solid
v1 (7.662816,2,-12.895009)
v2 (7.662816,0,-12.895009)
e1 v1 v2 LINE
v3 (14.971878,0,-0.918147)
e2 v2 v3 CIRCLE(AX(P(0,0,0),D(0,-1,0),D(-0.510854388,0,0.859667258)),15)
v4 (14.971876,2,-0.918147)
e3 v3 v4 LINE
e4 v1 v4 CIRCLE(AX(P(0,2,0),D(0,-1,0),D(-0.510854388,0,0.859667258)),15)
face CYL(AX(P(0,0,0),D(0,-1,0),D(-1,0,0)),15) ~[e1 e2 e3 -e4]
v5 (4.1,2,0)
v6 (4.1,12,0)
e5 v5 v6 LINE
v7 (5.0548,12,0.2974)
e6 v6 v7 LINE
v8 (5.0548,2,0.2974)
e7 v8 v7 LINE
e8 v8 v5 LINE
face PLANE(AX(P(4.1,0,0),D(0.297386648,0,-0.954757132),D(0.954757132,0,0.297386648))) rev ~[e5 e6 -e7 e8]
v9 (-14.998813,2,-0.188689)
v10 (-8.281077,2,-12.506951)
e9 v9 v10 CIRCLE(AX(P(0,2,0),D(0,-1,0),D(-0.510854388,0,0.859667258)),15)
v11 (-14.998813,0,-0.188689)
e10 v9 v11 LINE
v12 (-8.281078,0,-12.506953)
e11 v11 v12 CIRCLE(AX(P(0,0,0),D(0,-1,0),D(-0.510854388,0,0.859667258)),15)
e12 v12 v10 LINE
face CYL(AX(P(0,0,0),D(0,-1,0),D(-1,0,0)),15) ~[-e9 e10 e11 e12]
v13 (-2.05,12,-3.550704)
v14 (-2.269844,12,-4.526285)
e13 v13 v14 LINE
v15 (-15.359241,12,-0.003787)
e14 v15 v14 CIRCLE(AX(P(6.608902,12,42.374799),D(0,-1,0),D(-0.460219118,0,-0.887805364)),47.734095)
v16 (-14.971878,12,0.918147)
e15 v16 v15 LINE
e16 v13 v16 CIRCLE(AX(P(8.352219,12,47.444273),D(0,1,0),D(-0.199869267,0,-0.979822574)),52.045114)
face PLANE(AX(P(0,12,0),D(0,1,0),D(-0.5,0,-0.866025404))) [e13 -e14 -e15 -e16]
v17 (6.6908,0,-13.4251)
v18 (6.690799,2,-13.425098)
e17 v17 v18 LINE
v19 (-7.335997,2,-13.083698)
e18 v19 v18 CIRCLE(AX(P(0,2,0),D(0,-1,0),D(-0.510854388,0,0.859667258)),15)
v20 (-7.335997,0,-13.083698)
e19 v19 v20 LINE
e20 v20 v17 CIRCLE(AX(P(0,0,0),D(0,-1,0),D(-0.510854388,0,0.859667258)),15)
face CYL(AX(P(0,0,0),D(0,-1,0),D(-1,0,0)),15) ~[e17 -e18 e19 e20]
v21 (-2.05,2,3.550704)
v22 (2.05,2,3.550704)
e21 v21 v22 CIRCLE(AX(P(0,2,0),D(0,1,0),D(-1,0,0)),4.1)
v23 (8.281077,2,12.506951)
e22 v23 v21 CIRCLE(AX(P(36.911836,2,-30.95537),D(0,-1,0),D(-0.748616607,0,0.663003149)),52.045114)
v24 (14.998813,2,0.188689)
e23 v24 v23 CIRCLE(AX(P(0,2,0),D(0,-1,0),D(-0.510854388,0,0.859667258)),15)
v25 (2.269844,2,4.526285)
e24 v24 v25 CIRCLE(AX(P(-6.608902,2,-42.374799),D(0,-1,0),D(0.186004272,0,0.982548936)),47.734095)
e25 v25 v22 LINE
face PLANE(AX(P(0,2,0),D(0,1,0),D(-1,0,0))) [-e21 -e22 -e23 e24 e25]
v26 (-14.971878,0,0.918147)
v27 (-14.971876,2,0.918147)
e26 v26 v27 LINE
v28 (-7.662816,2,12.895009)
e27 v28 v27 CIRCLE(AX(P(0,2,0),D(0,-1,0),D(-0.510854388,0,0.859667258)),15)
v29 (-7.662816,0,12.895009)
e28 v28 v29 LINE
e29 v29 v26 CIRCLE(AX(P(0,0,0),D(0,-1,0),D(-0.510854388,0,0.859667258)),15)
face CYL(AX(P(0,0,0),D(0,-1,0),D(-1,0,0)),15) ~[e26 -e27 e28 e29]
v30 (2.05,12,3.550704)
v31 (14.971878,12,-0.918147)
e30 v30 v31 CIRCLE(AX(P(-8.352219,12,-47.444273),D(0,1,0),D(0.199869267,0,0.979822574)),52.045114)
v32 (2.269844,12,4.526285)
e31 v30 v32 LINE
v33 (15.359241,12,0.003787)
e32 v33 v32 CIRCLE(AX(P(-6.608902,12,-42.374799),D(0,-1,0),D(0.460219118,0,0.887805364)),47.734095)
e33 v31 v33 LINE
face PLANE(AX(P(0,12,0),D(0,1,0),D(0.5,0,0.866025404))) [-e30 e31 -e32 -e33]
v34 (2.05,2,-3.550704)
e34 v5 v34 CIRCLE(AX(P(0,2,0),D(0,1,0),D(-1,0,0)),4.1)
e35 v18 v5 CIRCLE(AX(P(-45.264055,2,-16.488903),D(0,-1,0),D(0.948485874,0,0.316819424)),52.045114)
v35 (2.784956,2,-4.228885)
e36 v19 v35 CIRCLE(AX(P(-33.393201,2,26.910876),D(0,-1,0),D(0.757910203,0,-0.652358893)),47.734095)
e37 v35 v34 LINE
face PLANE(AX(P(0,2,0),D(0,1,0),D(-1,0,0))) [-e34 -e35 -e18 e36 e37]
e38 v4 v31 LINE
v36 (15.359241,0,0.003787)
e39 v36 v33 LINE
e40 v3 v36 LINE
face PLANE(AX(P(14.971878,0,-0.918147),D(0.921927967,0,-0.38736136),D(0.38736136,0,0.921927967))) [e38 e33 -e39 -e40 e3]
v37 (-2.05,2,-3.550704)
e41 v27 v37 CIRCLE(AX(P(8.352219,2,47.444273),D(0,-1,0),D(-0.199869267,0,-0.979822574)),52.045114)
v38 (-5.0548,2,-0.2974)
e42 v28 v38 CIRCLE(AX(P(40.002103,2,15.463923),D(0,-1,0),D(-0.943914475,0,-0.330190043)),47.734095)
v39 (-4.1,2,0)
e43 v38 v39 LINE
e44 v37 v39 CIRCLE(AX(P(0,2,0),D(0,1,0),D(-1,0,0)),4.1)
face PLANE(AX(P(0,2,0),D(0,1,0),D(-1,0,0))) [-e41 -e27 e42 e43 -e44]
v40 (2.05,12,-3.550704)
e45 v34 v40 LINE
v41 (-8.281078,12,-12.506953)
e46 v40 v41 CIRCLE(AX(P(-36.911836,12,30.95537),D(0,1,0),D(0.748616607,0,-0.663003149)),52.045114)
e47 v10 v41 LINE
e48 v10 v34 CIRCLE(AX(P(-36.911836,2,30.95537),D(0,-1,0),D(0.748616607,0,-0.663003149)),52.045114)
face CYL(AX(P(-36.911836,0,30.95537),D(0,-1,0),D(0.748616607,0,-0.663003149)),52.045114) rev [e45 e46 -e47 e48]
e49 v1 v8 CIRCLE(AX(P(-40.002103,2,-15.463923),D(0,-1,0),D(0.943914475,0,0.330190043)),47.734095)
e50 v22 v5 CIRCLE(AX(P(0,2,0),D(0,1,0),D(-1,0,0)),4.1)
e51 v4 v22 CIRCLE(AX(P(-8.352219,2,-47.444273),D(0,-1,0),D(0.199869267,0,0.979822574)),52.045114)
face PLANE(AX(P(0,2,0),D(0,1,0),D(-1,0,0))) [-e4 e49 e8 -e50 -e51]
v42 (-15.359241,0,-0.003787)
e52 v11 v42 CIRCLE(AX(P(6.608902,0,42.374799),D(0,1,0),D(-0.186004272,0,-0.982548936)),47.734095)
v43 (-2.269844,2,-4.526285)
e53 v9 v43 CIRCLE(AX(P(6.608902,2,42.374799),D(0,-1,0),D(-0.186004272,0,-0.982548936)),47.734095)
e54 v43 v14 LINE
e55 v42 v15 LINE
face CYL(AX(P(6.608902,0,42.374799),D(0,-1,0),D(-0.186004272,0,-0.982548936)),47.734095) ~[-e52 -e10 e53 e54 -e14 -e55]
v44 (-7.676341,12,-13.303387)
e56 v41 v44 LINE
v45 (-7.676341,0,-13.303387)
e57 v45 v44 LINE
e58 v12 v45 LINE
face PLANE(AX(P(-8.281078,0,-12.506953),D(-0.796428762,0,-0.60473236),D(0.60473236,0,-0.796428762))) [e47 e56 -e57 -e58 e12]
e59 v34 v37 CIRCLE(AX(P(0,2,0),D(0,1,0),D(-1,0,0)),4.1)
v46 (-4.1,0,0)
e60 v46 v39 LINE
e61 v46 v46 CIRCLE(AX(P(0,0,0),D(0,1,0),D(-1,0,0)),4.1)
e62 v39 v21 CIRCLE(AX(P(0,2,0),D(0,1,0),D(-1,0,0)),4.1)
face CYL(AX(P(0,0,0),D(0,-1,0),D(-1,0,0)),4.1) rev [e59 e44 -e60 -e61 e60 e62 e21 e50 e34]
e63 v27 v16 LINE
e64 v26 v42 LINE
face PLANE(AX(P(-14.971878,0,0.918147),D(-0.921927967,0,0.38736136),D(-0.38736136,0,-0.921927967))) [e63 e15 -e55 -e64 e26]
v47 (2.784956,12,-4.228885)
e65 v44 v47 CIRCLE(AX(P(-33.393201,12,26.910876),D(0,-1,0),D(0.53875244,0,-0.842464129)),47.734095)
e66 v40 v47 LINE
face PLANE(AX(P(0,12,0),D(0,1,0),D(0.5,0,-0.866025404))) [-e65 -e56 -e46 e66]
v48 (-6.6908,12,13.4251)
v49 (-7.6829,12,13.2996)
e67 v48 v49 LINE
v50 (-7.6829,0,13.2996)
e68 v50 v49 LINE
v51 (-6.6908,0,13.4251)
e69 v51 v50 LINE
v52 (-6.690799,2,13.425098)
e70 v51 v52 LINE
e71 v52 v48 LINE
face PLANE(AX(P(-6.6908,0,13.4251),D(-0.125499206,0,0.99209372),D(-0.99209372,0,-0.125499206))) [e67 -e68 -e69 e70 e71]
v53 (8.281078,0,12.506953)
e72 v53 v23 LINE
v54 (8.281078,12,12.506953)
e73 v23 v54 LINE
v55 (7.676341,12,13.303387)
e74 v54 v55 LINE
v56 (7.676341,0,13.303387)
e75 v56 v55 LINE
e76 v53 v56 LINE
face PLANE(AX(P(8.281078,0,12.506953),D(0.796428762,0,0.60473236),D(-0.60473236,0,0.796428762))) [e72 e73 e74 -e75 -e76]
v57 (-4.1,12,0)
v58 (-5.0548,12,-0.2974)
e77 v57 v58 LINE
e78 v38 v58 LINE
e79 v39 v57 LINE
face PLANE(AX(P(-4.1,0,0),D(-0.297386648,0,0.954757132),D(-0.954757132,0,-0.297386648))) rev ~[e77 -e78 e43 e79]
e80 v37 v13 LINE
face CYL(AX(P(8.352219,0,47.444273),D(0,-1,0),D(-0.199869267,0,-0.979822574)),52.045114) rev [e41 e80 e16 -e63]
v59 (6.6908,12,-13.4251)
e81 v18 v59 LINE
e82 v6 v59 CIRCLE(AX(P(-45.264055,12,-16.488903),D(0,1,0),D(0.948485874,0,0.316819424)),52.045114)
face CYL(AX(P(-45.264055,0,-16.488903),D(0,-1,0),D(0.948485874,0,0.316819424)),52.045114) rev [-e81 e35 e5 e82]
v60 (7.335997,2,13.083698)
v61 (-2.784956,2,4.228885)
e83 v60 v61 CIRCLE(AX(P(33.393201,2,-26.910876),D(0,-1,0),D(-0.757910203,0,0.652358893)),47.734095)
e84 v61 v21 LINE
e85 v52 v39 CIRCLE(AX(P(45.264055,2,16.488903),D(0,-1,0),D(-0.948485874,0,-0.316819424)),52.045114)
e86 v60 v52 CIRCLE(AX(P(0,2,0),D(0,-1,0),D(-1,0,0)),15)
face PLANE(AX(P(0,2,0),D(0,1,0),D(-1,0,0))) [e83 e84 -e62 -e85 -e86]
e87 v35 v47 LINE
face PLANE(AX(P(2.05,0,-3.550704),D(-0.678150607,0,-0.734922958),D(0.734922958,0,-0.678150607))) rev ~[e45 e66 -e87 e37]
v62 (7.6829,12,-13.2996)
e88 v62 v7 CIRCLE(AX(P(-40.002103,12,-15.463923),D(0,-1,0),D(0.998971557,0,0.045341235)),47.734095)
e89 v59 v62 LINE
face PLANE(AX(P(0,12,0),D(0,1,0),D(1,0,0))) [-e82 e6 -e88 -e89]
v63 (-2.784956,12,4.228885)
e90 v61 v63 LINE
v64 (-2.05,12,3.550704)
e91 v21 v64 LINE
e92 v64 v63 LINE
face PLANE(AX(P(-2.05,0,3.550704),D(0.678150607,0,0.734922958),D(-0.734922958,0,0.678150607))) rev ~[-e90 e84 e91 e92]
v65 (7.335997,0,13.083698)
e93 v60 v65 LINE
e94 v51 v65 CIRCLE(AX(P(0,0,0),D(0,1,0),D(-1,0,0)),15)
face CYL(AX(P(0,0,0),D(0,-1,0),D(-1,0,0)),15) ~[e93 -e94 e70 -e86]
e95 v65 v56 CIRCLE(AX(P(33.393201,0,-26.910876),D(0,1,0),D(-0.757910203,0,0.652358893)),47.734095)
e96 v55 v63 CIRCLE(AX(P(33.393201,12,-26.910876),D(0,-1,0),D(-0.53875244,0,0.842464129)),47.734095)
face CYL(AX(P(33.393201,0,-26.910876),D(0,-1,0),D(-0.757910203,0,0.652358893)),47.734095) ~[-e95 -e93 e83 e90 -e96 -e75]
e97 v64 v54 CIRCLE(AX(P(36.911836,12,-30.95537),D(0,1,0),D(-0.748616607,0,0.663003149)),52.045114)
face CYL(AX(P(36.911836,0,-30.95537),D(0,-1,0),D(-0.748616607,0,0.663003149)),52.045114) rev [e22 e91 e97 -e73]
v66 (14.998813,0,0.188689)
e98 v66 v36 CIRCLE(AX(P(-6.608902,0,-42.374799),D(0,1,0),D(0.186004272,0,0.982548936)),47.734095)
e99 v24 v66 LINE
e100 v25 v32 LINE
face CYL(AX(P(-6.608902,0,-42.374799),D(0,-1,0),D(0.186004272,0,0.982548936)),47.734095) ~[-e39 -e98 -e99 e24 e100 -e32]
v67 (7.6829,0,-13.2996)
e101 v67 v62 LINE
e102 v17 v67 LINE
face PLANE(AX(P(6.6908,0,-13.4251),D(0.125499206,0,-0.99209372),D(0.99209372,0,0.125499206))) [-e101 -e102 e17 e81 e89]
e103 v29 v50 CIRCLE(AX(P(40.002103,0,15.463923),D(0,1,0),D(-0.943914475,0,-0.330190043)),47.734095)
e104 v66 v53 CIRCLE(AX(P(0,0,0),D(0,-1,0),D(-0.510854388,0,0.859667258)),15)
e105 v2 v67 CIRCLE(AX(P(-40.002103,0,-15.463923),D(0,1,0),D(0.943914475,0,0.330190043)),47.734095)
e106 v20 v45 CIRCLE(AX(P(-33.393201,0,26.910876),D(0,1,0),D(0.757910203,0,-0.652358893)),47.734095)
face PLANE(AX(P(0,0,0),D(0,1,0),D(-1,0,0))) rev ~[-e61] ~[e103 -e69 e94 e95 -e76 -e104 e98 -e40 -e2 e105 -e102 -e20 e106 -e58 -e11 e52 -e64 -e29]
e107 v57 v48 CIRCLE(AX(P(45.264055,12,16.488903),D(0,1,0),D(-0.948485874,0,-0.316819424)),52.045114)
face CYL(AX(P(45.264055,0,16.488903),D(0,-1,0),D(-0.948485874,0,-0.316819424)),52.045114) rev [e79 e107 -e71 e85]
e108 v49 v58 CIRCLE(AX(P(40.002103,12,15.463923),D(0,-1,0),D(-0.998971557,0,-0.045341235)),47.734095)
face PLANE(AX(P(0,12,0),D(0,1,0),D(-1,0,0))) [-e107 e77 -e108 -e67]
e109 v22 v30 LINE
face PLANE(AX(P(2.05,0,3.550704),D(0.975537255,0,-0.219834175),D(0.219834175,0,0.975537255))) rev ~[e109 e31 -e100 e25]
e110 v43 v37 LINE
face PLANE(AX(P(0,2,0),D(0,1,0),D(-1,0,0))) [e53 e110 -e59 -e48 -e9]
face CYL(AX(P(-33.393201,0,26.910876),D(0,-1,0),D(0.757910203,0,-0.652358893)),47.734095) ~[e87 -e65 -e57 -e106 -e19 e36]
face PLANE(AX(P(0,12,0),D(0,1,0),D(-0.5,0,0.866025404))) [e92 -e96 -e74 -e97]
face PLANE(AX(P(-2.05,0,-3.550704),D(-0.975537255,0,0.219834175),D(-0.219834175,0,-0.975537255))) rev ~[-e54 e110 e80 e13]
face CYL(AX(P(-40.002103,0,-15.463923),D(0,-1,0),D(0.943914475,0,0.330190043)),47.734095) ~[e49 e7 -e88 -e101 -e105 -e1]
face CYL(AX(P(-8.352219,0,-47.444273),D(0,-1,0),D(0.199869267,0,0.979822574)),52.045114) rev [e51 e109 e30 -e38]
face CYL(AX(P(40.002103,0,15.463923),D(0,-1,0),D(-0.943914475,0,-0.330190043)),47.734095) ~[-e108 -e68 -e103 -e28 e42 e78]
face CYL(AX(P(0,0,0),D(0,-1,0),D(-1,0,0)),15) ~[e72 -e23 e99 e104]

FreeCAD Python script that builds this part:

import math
import FreeCAD as App
import Part
import Sketcher

V = App.Vector
Q = App.Units.Quantity

doc = App.newDocument("Part")
body = doc.addObject("PartDesign::Body", "Body")

# Sketch on XZ plane
sketch1 = body.newObject("Sketcher::SketchObject", "Sketch")
sketch1.AttachmentSupport = (doc.getObject("XZ_Plane"), [""])
sketch1.MapMode = "FlatFace"
sketch1.addGeometry(Part.Circle(V(0, 0, 0), V(0, 0, 1), 15), False)
sketch1.addGeometry(Part.Circle(V(0, 0, 0), V(0, 0, 1), 4.1), False)
sketch1.addConstraint(Sketcher.Constraint("Coincident", 0, 3, -1, 1))
sketch1.addConstraint(Sketcher.Constraint("Coincident", 1, 3, -1, 1))
sketch1.addConstraint(Sketcher.Constraint("Diameter", 0, Q("30 mm")))
sketch1.addConstraint(Sketcher.Constraint("Diameter", 1, Q("8.2 mm")))
pad1 = body.newObject("PartDesign::Pad", "Pad")
pad1.Profile = sketch1
pad1.Length = 2
pad1.Reversed = True

# Sketch on XZ plane
sketch2 = body.newObject("Sketcher::SketchObject", "Sketch001")
sketch2.AttachmentSupport = (doc.getObject("XZ_Plane"), [""])
sketch2.MapMode = "FlatFace"
sketch2.addGeometry(Part.LineSegment(V(-7.6829, 13.2996, 0), V(-6.6908, 13.4251, 0)), False)
sketch2.addGeometry(Part.ArcOfCircle(Part.Circle(V(45.264055, 16.488903, 0), V(0, 0, 1), 52.045114), math.radians(-176.625149), math.radians(-161.529314)), False)
sketch2.addGeometry(Part.LineSegment(V(-4.1, 0, 0), V(-5.0548, -0.2974, 0)), False)
sketch2.addGeometry(Part.ArcOfCircle(Part.Circle(V(40.002103, 15.463923, 0), V(0, 0, 1), 47.734095), math.radians(-177.401248), math.radians(-160.719689)), False)
sketch2.addConstraint(Sketcher.Constraint("Coincident", 0, 2, 1, 1))
sketch2.addConstraint(Sketcher.Constraint("Coincident", 1, 2, 2, 1))
sketch2.addConstraint(Sketcher.Constraint("Coincident", 2, 2, 3, 2))
sketch2.addConstraint(Sketcher.Constraint("Coincident", 3, 1, 0, 1))
sketch2.addConstraint(Sketcher.Constraint("PointOnObject", 1, 2, -1))
sketch2.addConstraint(Sketcher.Constraint("Distance", 0, Q("1 mm")))
sketch2.addConstraint(Sketcher.Constraint("Distance", 2, Q("1 mm")))
sketch2.addConstraint(Sketcher.Constraint("Radius", 1, Q("52.045 mm")))
sketch2.addConstraint(Sketcher.Constraint("Radius", 3, Q("47.734 mm")))
sketch2.addConstraint(Sketcher.Constraint("DistanceX", 1, 2, -1, 1, Q("4.1 mm")))
sketch2.addConstraint(Sketcher.Constraint("DistanceX", -1, 1, 1, 3, Q("45.264 mm")))
sketch2.addConstraint(Sketcher.Constraint("DistanceX", -1, 1, 3, 3, Q("40.002 mm")))
sketch2.addConstraint(Sketcher.Constraint("DistanceY", -1, 1, 3, 3, Q("15.464 mm")))
sketch2.addConstraint(Sketcher.Constraint("DistanceY", -1, 1, 0, 2, Q("13.425 mm")))
pad2 = body.newObject("PartDesign::Pad", "Pad001")
pad2.Profile = sketch2
pad2.Length = 12
pad2.Reversed = True
doc.recompute()

polarpattern = body.newObject("PartDesign::PolarPattern", "PolarPattern")
polarpattern.Originals = [pad2]
polarpattern.Axis = (doc.getObject("Y_Axis"), [""])
polarpattern.Angle = 360
polarpattern.Occurrences = 6
body.Tip = polarpattern

doc.recompute()
